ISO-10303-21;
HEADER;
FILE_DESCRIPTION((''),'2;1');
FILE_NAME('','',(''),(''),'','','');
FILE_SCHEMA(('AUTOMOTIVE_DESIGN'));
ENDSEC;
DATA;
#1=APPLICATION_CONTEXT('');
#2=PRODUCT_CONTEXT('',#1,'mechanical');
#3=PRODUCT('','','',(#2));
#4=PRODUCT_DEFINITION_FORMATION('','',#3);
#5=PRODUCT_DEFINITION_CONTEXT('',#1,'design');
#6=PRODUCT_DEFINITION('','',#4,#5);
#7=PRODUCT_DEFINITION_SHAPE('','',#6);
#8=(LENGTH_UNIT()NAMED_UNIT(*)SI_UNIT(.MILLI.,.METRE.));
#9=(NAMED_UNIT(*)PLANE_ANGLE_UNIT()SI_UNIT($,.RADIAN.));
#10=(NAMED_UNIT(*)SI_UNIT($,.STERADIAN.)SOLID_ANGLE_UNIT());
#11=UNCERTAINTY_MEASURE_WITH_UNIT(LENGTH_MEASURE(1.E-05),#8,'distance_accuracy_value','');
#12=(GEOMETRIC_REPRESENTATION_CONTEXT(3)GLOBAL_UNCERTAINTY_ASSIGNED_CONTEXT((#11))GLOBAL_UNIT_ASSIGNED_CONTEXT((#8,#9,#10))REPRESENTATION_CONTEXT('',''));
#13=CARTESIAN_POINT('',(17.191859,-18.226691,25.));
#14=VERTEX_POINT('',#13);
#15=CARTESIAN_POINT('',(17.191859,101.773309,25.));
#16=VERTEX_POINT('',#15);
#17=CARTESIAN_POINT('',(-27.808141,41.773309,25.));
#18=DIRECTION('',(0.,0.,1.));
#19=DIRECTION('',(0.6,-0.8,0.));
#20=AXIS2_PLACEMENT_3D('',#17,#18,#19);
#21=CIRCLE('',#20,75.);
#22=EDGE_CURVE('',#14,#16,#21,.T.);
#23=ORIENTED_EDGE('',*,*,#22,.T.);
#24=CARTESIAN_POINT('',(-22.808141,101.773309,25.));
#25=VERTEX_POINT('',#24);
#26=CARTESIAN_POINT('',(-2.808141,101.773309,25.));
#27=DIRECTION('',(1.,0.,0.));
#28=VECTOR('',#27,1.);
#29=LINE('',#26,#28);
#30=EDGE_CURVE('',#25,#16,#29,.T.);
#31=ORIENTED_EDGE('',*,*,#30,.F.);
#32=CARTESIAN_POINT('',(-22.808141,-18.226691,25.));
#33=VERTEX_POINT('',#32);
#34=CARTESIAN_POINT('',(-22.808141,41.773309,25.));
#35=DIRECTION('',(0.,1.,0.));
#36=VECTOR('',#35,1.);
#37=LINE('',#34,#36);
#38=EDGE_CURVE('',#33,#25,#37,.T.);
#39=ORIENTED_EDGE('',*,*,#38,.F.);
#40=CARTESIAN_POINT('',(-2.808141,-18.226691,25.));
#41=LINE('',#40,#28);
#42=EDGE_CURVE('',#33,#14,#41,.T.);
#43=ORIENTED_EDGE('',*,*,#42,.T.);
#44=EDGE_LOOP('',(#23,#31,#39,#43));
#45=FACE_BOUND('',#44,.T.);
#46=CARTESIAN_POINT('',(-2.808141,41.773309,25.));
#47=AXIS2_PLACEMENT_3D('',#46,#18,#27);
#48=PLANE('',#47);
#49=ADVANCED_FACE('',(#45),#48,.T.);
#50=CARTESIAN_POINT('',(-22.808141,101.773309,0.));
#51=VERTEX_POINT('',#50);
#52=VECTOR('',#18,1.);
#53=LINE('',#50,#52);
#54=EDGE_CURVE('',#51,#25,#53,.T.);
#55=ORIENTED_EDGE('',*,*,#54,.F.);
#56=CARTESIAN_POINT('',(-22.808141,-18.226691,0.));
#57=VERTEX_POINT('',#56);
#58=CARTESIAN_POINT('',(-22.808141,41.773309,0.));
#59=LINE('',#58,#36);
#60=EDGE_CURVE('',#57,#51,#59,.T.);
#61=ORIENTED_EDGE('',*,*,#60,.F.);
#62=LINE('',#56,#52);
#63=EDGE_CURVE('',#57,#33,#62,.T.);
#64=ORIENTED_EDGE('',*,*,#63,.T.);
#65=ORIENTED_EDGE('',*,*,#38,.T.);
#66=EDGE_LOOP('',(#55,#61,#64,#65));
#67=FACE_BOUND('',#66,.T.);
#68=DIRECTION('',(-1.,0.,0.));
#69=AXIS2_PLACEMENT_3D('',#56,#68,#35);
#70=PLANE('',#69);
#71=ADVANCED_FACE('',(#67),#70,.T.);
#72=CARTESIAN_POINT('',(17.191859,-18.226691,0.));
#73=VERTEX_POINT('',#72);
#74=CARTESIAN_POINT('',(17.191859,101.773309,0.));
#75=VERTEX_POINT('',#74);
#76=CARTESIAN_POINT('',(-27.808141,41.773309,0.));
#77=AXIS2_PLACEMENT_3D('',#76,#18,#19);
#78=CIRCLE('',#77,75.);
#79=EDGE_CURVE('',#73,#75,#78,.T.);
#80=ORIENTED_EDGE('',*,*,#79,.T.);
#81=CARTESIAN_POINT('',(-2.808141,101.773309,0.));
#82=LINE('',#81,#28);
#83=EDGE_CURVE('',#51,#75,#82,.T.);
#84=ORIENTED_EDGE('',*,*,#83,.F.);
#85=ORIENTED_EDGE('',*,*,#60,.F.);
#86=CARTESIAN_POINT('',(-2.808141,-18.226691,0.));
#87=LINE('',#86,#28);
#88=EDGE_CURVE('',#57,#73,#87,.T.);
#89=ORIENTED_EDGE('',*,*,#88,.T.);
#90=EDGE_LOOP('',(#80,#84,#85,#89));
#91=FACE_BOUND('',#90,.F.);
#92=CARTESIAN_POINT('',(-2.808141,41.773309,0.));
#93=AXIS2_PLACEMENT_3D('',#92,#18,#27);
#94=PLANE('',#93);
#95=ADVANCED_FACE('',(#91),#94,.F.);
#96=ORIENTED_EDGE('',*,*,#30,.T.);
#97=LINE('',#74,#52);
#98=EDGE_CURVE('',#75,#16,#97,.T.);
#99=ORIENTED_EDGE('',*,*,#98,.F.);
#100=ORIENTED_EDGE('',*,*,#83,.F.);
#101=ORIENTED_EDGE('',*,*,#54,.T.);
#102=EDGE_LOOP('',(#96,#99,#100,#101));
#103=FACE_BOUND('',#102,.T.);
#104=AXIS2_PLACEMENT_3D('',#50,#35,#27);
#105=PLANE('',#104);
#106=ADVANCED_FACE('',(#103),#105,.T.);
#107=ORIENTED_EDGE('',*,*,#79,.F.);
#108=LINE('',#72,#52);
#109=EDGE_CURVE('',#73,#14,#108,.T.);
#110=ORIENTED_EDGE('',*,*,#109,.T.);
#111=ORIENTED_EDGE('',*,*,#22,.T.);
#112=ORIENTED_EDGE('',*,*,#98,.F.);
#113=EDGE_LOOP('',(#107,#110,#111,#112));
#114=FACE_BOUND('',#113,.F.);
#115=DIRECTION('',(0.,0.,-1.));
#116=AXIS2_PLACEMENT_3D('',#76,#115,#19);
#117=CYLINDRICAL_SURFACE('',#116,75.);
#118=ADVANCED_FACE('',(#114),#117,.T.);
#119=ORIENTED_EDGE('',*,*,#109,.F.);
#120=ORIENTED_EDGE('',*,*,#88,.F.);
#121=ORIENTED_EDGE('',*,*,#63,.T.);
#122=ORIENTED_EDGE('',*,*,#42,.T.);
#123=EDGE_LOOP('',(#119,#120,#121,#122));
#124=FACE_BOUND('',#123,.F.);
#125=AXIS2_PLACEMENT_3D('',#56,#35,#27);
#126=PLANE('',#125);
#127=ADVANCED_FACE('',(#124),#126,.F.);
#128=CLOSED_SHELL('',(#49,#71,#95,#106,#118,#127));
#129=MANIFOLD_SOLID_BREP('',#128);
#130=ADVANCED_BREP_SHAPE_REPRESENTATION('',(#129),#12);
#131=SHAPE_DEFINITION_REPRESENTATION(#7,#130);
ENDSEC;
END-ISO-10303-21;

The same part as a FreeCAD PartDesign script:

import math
import FreeCAD as App
import Part
import Sketcher

doc = App.newDocument("Part")
body = doc.addObject("PartDesign::Body", "Body")

sketch1 = doc.addObject("Sketcher::SketchObject", "Sketch")
body.addObject(sketch1)
sketch1.AttachmentSupport = (doc.XY_Plane, [""])
sketch1.MapMode = "FlatFace"
sketch1.addGeometry([
    Part.LineSegment(App.Vector(-23, 102, 0), App.Vector(-23, -18, 0)),
    Part.LineSegment(App.Vector(-23, -18, 0), App.Vector(17, -18, 0)),
    Part.ArcOfCircle(Part.Circle(App.Vector(-28, 42, 0), App.Vector(0, 0, 1), 75), math.radians(-53), math.radians(53)),
    Part.LineSegment(App.Vector(17, 102, 0), App.Vector(-23, 102, 0)),
], False)
sketch1.addConstraint([
    Sketcher.Constraint("Coincident", 0, 2, 1, 1),
    Sketcher.Constraint("Coincident", 1, 2, 2, 1),
    Sketcher.Constraint("Coincident", 2, 2, 3, 1),
    Sketcher.Constraint("Coincident", 3, 2, 0, 1),
    Sketcher.Constraint("Vertical", 0),
    Sketcher.Constraint("Horizontal", 1),
    Sketcher.Constraint("Horizontal", 3),
    Sketcher.Constraint("Vertical", 1, 2, 2, 2),
    Sketcher.Constraint("Radius", 2, 75.0),
    Sketcher.Constraint("DistanceX", 1, 1, 1, 2, 40.0),
    Sketcher.Constraint("DistanceY", 0, 2, 0, 1, 120.0),
    Sketcher.Constraint("DistanceX", 2, 3, -1, 1, 27.808141),
    Sketcher.Constraint("DistanceY", -1, 1, 2, 3, 41.773309),
])
pad1 = doc.addObject("PartDesign::Pad", "Pad")
body.addObject(pad1)
pad1.Profile = sketch1
pad1.Length = 25

doc.recompute()
